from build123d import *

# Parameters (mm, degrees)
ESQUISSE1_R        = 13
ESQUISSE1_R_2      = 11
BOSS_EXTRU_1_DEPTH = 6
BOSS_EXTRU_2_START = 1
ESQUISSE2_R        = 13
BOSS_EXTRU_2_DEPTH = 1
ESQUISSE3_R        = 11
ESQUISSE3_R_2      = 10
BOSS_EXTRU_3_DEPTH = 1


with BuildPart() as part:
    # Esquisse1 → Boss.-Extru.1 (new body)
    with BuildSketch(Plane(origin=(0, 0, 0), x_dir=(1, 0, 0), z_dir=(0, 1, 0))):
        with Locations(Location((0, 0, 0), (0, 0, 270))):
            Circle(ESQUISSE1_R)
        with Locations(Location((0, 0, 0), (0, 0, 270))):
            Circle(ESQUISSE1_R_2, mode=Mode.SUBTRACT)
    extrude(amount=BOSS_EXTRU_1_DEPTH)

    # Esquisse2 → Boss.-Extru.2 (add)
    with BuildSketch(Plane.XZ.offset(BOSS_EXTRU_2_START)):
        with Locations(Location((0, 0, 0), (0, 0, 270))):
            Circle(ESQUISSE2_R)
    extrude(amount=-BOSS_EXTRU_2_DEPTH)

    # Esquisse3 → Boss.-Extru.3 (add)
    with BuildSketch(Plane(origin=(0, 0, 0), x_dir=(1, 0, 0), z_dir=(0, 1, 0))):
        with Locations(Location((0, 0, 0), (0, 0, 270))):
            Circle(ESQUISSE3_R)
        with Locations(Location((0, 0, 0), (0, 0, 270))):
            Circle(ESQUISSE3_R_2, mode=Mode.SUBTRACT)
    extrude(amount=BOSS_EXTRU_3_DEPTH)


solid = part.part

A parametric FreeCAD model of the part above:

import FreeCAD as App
import Part
import Sketcher
Q = App.Units.Quantity

doc = App.newDocument("Part")
body = doc.addObject("PartDesign::Body", "Body")

sketch1 = doc.addObject("Sketcher::SketchObject", "Sketch")
body.addObject(sketch1)
sketch1.AttachmentSupport = (doc.XZ_Plane, [""])
sketch1.MapMode = "FlatFace"
sketch1.addGeometry([
    Part.Circle(App.Vector(0, 0, 0), App.Vector(0, 0, 1), 13),
    Part.Circle(App.Vector(0, 0, 0), App.Vector(0, 0, 1), 11),
], False)
sketch1.addConstraint([
    Sketcher.Constraint("Coincident", 0, 3, -1, 1),
    Sketcher.Constraint("Coincident", 1, 3, -1, 1),
    Sketcher.Constraint("Diameter", 0, Q("26 mm")),
    Sketcher.Constraint("Diameter", 1, Q("22 mm")),
])
pad1 = doc.addObject("PartDesign::Pad", "Pad")
body.addObject(pad1)
pad1.Profile = sketch1
pad1.Length = 6
pad1.Reversed = True

sketch2 = doc.addObject("Sketcher::SketchObject", "Sketch001")
body.addObject(sketch2)
sketch2.AttachmentSupport = (doc.XZ_Plane, [""])
sketch2.MapMode = "FlatFace"
sketch2.AttachmentOffset = App.Placement(App.Vector(0, 0, 1), App.Rotation())
sketch2.addGeometry(Part.Circle(App.Vector(0, 0, 0), App.Vector(0, 0, 1), 13), False)
sketch2.addConstraint([
    Sketcher.Constraint("Coincident", 0, 3, -1, 1),
    Sketcher.Constraint("Diameter", 0, Q("26 mm")),
])
pad2 = doc.addObject("PartDesign::Pad", "Pad001")
body.addObject(pad2)
pad2.Profile = sketch2
pad2.Length = 1
pad2.Reversed = True

sketch3 = doc.addObject("Sketcher::SketchObject", "Sketch002")
body.addObject(sketch3)
sketch3.AttachmentSupport = (doc.XZ_Plane, [""])
sketch3.MapMode = "FlatFace"
sketch3.addGeometry([
    Part.Circle(App.Vector(0, 0, 0), App.Vector(0, 0, 1), 11),
    Part.Circle(App.Vector(0, 0, 0), App.Vector(0, 0, 1), 10),
], False)
sketch3.addConstraint([
    Sketcher.Constraint("Coincident", 0, 3, -1, 1),
    Sketcher.Constraint("Coincident", 1, 3, -1, 1),
    Sketcher.Constraint("Diameter", 0, Q("22 mm")),
    Sketcher.Constraint("Diameter", 1, Q("20 mm")),
])
pad3 = doc.addObject("PartDesign::Pad", "Pad002")
body.addObject(pad3)
pad3.Profile = sketch3
pad3.Length = 1
pad3.Reversed = True

doc.recompute()
